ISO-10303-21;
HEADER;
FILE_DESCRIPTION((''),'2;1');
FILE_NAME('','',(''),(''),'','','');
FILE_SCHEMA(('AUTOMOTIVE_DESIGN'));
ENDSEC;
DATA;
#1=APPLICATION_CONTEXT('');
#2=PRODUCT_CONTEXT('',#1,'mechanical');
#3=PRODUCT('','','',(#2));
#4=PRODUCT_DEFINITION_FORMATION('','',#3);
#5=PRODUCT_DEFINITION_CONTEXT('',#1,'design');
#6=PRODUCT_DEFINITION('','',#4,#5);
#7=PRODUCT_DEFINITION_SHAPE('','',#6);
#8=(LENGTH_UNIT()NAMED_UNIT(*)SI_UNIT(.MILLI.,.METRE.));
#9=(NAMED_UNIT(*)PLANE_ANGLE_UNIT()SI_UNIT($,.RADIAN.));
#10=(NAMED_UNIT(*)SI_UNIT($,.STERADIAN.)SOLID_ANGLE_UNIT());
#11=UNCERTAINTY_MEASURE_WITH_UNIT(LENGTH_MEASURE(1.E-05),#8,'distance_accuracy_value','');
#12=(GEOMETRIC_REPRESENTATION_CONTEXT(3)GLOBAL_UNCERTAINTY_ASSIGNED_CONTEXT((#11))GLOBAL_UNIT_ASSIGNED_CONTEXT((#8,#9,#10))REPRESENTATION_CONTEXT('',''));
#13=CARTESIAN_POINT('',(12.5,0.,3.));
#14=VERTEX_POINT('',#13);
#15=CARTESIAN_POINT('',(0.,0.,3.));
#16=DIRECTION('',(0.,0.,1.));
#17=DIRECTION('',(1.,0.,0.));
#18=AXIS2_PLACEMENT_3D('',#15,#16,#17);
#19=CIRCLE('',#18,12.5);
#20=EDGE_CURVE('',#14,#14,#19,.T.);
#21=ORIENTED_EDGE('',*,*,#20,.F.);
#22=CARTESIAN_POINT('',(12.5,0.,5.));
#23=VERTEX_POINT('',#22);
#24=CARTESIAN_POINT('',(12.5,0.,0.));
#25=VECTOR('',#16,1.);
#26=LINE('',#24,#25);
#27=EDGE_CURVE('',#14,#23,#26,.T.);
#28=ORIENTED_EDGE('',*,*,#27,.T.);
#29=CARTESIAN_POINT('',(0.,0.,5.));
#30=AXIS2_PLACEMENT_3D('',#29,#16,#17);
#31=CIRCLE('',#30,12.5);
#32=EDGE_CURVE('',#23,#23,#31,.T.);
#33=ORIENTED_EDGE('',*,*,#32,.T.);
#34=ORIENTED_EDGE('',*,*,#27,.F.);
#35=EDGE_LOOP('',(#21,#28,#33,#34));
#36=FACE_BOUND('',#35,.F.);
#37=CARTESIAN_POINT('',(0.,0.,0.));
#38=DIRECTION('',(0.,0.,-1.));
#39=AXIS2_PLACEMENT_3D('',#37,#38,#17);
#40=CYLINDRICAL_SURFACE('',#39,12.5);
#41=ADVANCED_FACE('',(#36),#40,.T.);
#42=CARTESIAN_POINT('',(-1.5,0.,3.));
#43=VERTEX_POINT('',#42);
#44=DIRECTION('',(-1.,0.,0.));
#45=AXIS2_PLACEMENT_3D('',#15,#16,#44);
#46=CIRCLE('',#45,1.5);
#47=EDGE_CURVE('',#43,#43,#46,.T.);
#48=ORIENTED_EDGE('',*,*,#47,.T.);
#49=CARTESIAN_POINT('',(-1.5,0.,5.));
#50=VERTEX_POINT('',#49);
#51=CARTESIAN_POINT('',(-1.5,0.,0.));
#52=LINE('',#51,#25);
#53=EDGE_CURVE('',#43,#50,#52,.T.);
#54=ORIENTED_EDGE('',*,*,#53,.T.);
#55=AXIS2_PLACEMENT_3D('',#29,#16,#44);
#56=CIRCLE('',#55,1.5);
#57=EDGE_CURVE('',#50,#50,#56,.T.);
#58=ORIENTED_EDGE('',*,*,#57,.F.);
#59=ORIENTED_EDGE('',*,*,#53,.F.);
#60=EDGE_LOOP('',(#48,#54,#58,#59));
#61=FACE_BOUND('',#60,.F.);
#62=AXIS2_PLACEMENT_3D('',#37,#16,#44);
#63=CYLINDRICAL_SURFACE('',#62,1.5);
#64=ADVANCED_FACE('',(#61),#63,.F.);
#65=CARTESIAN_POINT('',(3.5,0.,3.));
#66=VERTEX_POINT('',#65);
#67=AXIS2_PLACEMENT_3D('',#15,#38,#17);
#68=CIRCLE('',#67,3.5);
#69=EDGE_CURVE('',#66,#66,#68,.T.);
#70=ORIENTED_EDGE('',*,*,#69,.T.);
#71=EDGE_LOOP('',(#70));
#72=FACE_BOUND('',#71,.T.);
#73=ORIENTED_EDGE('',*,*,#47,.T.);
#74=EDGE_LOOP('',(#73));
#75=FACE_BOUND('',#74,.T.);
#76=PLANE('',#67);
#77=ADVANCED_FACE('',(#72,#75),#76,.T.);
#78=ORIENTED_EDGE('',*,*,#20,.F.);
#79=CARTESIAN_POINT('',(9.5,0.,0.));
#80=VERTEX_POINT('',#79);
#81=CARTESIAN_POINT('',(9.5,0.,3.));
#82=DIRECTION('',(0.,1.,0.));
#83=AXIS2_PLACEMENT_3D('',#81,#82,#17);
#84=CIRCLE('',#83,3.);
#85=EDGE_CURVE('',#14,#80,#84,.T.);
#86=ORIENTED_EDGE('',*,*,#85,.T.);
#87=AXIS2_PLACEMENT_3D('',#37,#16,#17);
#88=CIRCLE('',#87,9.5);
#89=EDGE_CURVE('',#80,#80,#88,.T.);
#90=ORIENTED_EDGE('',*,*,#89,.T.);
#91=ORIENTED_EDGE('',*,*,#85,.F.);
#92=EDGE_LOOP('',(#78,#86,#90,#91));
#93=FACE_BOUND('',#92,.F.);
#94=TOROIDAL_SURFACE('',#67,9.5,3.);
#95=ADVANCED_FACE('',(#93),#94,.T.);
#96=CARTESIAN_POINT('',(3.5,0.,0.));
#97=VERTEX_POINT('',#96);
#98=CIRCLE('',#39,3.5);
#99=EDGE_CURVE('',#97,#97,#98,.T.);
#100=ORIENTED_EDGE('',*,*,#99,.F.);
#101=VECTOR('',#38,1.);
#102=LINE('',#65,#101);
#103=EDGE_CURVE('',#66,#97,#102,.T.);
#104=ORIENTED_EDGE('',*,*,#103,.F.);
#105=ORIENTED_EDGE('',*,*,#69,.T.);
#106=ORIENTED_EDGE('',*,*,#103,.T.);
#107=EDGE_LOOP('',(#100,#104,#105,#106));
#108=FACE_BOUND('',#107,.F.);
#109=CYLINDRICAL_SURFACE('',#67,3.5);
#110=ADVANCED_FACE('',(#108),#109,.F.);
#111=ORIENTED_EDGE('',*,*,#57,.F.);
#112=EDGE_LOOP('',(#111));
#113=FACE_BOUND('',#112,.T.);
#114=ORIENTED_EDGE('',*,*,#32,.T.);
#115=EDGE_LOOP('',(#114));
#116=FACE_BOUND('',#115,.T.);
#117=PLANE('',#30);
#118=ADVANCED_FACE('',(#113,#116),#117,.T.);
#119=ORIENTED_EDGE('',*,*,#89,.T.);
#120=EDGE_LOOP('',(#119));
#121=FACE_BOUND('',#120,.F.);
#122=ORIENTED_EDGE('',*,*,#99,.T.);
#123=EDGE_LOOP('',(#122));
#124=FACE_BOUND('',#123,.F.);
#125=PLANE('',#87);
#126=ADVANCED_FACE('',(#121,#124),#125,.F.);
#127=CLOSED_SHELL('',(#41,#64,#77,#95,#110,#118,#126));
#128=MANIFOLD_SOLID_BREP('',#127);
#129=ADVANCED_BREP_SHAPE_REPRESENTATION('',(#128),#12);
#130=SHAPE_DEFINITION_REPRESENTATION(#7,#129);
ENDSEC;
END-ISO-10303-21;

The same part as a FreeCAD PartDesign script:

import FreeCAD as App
import Part
import Sketcher
from FreeCAD import Vector
Q = App.Units.Quantity


def edges_at(feature, points):
    """Names of the edges that pass closest to the given points."""
    edges = feature.Shape.Edges
    near = lambda p: min(range(len(edges)), key=lambda i: edges[i].distToShape(Part.Vertex(*p))[0])
    return sorted({f"Edge{near(p) + 1}" for p in points})

doc = App.newDocument("Part")
params = doc.addObject("Spreadsheet::Sheet", "Params")
for row, (alias, value) in enumerate([
    ("sketch1_diameter", "25 mm"),
    ("pad1_length", "5 mm"),
    ("sketch2_diameter", "3 mm"),
    ("hole_diameter", "3 mm"),
    ("hole_cbore_diameter", "7 mm"),
    ("hole_cbore_depth", "3 mm"),
    ("fillet_radius", "3 mm"),
], start=1):
    params.set(f"A{row}", alias)
    params.set(f"B{row}", "=" + value)
    params.setAlias(f"B{row}", alias)

body = doc.addObject("PartDesign::Body", "Body")

# Sketch on XY plane
sketch1 = body.newObject("Sketcher::SketchObject", "Sketch")
sketch1.AttachmentSupport = (doc.getObject("XY_Plane"), [""])
sketch1.MapMode = "FlatFace"
sketch1.addGeometry(Part.Circle(Vector(0, 0, 0), Vector(0, 0, 1), 12), False)
sketch1.addConstraint([
    Sketcher.Constraint("Coincident", 0, 3, -1, 1),
    Sketcher.Constraint("Diameter", 0, Q("25 mm")),
])
sketch1.setExpression("Constraints[1]", "Params.sketch1_diameter")
pad1 = body.newObject("PartDesign::Pad", "Pad")
pad1.Profile = sketch1
pad1.setExpression("Length", "Params.pad1_length")

# Sketch on XY plane
sketch2 = body.newObject("Sketcher::SketchObject", "Sketch001")
sketch2.AttachmentSupport = (doc.getObject("XY_Plane"), [""])
sketch2.MapMode = "FlatFace"
sketch2.addGeometry(Part.Circle(Vector(0, 0, 0), Vector(0, 0, 1), 1.5), False)
sketch2.addConstraint([
    Sketcher.Constraint("Coincident", 0, 3, -1, 1),
    Sketcher.Constraint("Diameter", 0, Q("3 mm")),
])
sketch2.setExpression("Constraints[1]", "Params.sketch2_diameter")
doc.recompute()
hole = body.newObject("PartDesign::Hole", "Hole")
hole.Profile = sketch2
hole.ThreadType = "None"
hole.setExpression("Diameter", "Params.hole_diameter")
hole.DepthType = "ThroughAll"
hole.HoleCutType = "Counterbore"
hole.setExpression("HoleCutDiameter", "Params.hole_cbore_diameter")
hole.setExpression("HoleCutDepth", "Params.hole_cbore_depth")
hole.Reversed = True
doc.recompute()

fillet = body.newObject("PartDesign::Fillet", "Fillet")
fillet.Base = (hole, edges_at(hole, [(-12.5, 0, 0)]))
fillet.setExpression("Radius", "Params.fillet_radius")

doc.recompute()
